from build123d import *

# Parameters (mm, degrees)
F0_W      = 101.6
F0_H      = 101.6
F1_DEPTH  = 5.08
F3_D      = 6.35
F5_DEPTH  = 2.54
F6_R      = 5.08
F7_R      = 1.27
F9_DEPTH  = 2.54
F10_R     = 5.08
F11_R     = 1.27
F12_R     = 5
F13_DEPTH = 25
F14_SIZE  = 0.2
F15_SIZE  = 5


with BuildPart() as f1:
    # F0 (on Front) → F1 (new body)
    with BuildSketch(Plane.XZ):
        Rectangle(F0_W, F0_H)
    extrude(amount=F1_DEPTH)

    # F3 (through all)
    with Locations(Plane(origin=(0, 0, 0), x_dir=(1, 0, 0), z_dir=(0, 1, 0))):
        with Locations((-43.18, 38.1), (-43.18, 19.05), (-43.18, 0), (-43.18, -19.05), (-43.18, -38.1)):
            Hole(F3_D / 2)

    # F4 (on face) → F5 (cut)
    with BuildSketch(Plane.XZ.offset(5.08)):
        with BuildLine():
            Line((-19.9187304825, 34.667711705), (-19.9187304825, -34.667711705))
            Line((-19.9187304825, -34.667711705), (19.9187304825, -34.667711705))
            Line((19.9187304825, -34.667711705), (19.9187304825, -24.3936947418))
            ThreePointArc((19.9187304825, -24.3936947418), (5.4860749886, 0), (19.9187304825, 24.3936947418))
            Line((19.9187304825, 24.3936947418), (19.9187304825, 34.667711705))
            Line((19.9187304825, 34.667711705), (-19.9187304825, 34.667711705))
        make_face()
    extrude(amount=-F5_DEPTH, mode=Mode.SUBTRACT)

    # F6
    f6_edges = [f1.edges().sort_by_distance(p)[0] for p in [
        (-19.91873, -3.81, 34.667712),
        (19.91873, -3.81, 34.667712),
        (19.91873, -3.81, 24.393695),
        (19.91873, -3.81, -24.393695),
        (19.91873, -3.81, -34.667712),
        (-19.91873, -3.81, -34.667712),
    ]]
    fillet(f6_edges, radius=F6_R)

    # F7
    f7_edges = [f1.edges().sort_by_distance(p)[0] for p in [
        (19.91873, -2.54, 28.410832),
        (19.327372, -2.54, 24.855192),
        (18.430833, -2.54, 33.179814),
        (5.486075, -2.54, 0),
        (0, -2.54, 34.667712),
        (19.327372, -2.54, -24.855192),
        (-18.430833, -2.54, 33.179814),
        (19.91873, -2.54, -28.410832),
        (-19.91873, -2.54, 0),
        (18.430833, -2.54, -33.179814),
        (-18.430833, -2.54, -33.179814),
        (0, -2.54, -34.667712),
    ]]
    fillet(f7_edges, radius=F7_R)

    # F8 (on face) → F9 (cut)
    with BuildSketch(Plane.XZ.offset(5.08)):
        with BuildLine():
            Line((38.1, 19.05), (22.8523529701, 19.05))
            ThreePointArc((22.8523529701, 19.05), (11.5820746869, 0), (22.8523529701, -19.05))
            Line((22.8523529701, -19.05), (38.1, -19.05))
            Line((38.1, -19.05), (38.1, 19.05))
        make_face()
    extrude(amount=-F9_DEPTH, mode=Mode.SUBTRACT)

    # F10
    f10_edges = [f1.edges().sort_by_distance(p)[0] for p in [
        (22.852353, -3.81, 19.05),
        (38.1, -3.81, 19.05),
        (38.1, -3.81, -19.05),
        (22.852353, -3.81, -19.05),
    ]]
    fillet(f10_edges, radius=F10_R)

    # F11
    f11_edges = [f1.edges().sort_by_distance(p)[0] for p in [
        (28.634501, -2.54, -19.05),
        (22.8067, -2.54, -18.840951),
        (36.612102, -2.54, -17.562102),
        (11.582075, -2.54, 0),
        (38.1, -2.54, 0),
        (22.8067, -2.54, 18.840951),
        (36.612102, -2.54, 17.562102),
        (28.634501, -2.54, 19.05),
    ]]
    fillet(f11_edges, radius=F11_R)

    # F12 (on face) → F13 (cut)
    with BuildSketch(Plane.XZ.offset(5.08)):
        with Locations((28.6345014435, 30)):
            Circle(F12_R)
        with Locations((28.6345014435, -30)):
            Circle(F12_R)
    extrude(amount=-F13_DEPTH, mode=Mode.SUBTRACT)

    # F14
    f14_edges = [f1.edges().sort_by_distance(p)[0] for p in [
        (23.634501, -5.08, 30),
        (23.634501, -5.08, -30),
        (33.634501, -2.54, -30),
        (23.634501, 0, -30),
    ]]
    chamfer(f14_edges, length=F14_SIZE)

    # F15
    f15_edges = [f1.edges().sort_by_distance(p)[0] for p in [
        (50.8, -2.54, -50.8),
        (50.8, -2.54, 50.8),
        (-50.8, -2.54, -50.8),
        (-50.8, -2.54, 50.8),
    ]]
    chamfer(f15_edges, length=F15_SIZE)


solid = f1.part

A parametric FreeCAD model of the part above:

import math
import FreeCAD as App
import Part
import Sketcher
from FreeCAD import Vector
Q = App.Units.Quantity


def edges_at(feature, points):
    """Names of the edges that pass closest to the given points."""
    edges = feature.Shape.Edges
    near = lambda p: min(range(len(edges)), key=lambda i: edges[i].distToShape(Part.Vertex(*p))[0])
    return sorted({f"Edge{near(p) + 1}" for p in points})

doc = App.newDocument("Part")
body = doc.addObject("PartDesign::Body", "Body")

# Sketch on XZ plane
sketch1 = body.newObject("Sketcher::SketchObject", "Sketch")
sketch1.AttachmentSupport = (doc.getObject("XZ_Plane"), [""])
sketch1.MapMode = "FlatFace"
sketch1.addGeometry(Part.LineSegment(Vector(-51, 51, 0), Vector(-51, -51, 0)), False)
sketch1.addGeometry(Part.LineSegment(Vector(-51, -51, 0), Vector(51, -51, 0)), False)
sketch1.addGeometry(Part.LineSegment(Vector(51, -51, 0), Vector(51, 51, 0)), False)
sketch1.addGeometry(Part.LineSegment(Vector(51, 51, 0), Vector(-51, 51, 0)), False)
sketch1.addConstraint(Sketcher.Constraint("Coincident", 0, 2, 1, 1))
sketch1.addConstraint(Sketcher.Constraint("Coincident", 1, 2, 2, 1))
sketch1.addConstraint(Sketcher.Constraint("Coincident", 2, 2, 3, 1))
sketch1.addConstraint(Sketcher.Constraint("Coincident", 3, 2, 0, 1))
sketch1.addConstraint(Sketcher.Constraint("Vertical", 0))
sketch1.addConstraint(Sketcher.Constraint("Horizontal", 1))
sketch1.addConstraint(Sketcher.Constraint("Vertical", 2))
sketch1.addConstraint(Sketcher.Constraint("Horizontal", 3))
sketch1.addConstraint(Sketcher.Constraint("Symmetric", 0, 2, 2, 2, -1, 1))
sketch1.addConstraint(Sketcher.Constraint("Equal", 3, 0))
sketch1.addConstraint(Sketcher.Constraint("DistanceX", 1, 1, 1, 2, Q("4 in")))
pad1 = body.newObject("PartDesign::Pad", "Pad")
pad1.Profile = sketch1
pad1.Length = Q("0.2 in")

# Sketch on XZ plane
sketch2 = body.newObject("Sketcher::SketchObject", "Sketch001")
sketch2.AttachmentSupport = (doc.getObject("XZ_Plane"), [""])
sketch2.MapMode = "FlatFace"
sketch2.addGeometry(Part.Circle(Vector(-43.2, -38.1, 0), Vector(0, 0, 1), 3.2), False)
sketch2.addGeometry(Part.Circle(Vector(-43.2, -19.1, 0), Vector(0, 0, 1), 3.2), False)
sketch2.addGeometry(Part.Circle(Vector(-43.2, 0, 0), Vector(0, 0, 1), 3.2), False)
sketch2.addGeometry(Part.Circle(Vector(-43.2, 19.1, 0), Vector(0, 0, 1), 3.2), False)
sketch2.addGeometry(Part.Circle(Vector(-43.2, 38.1, 0), Vector(0, 0, 1), 3.2), False)
sketch2.addConstraint(Sketcher.Constraint("Equal", 0, 1))
sketch2.addConstraint(Sketcher.Constraint("Equal", 1, 2))
sketch2.addConstraint(Sketcher.Constraint("Equal", 2, 3))
sketch2.addConstraint(Sketcher.Constraint("Equal", 3, 4))
sketch2.addConstraint(Sketcher.Constraint("Symmetric", 1, 3, 3, 3, -1))
sketch2.addConstraint(Sketcher.Constraint("Symmetric", 0, 3, 4, 3, -1))
sketch2.addConstraint(Sketcher.Constraint("PointOnObject", 2, 3, -1))
sketch2.addConstraint(Sketcher.Constraint("Vertical", 0, 3, 1, 3))
sketch2.addConstraint(Sketcher.Constraint("Vertical", 1, 3, 2, 3))
sketch2.addConstraint(Sketcher.Constraint("Diameter", 0, Q("0.25 in")))
sketch2.addConstraint(Sketcher.Constraint("DistanceY", 0, 3, 4, 3, Q("3 in")))
sketch2.addConstraint(Sketcher.Constraint("DistanceX", 0, 3, -1, 1, Q("1.7 in")))
sketch2.addConstraint(Sketcher.Constraint("DistanceY", 1, 3, 3, 3, Q("1.5 in")))
doc.recompute()
hole = body.newObject("PartDesign::Hole", "Hole")
hole.Profile = sketch2
hole.ThreadType = "None"
hole.Diameter = Q("0.25 in")
hole.DepthType = "ThroughAll"
hole.Reversed = True

# Sketch on XZ plane
sketch3 = body.newObject("Sketcher::SketchObject", "Sketch002")
sketch3.AttachmentSupport = (doc.getObject("XZ_Plane"), [""])
sketch3.MapMode = "FlatFace"
sketch3.AttachmentOffset = App.Placement(Vector(0, 0, 0.2 * 25.4), App.Rotation())
sketch3.addGeometry(Part.LineSegment(Vector(-20, 35, 0), Vector(-20, -35, 0)), False)
sketch3.addGeometry(Part.LineSegment(Vector(-20, -35, 0), Vector(20, -35, 0)), False)
sketch3.addGeometry(Part.LineSegment(Vector(20, -35, 0), Vector(20, -24, 0)), False)
sketch3.addGeometry(Part.ArcOfCircle(Part.Circle(Vector(33, 0, 0), Vector(0, 0, 1), 28), math.radians(119), math.radians(241)), False)
sketch3.addGeometry(Part.LineSegment(Vector(20, 24, 0), Vector(20, 35, 0)), False)
sketch3.addGeometry(Part.LineSegment(Vector(20, 35, 0), Vector(-20, 35, 0)), False)
sketch3.addConstraint(Sketcher.Constraint("Coincident", 0, 2, 1, 1))
sketch3.addConstraint(Sketcher.Constraint("Coincident", 1, 2, 2, 1))
sketch3.addConstraint(Sketcher.Constraint("Coincident", 2, 2, 3, 2))
sketch3.addConstraint(Sketcher.Constraint("Coincident", 3, 1, 4, 1))
sketch3.addConstraint(Sketcher.Constraint("Coincident", 4, 2, 5, 1))
sketch3.addConstraint(Sketcher.Constraint("Coincident", 5, 2, 0, 1))
sketch3.addConstraint(Sketcher.Constraint("Vertical", 0))
sketch3.addConstraint(Sketcher.Constraint("Horizontal", 1))
sketch3.addConstraint(Sketcher.Constraint("Vertical", 2))
sketch3.addConstraint(Sketcher.Constraint("Vertical", 4))
sketch3.addConstraint(Sketcher.Constraint("Horizontal", 5))
sketch3.addConstraint(Sketcher.Constraint("Symmetric", 0, 2, 4, 2, -1, 1))
sketch3.addConstraint(Sketcher.Constraint("Symmetric", 2, 2, 3, 1, -1))
sketch3.addConstraint(Sketcher.Constraint("Radius", 3, Q("27.831118 mm")))
sketch3.addConstraint(Sketcher.Constraint("DistanceX", 1, 1, 1, 2, Q("39.837461 mm")))
sketch3.addConstraint(Sketcher.Constraint("DistanceY", 0, 2, 0, 1, Q("69.335423 mm")))
sketch3.addConstraint(Sketcher.Constraint("DistanceY", 2, 1, 2, 2, Q("10.274017 mm")))
pocket1 = body.newObject("PartDesign::Pocket", "Pocket")
pocket1.Profile = sketch3
pocket1.Length = Q("0.1 in")
doc.recompute()

fillet = body.newObject("PartDesign::Fillet", "Fillet")
fillet.Base = (pocket1, edges_at(pocket1, [
    (-19.919, -3.81, 34.668),
    (19.919, -3.81, 34.668),
    (19.919, -3.81, 24.394),
    (19.919, -3.81, -24.394),
    (19.919, -3.81, -34.668),
    (-19.919, -3.81, -34.668),
]))
fillet.Radius = Q("0.2 in")
doc.recompute()

fillet2 = body.newObject("PartDesign::Fillet", "Fillet001")
fillet2.Base = (fillet, edges_at(fillet, [
    (19.919, -2.54, 28.411),
    (19.327, -2.54, 24.855),
    (18.431, -2.54, 33.18),
    (5.486, -2.54, 0),
    (0, -2.54, 34.668),
    (19.327, -2.54, -24.855),
    (-18.431, -2.54, 33.18),
    (19.919, -2.54, -28.411),
    (-19.919, -2.54, 0),
    (18.431, -2.54, -33.18),
    (-18.431, -2.54, -33.18),
    (0, -2.54, -34.668),
]))
fillet2.Radius = Q("0.05 in")

# Sketch on XZ plane
sketch4 = body.newObject("Sketcher::SketchObject", "Sketch003")
sketch4.AttachmentSupport = (doc.getObject("XZ_Plane"), [""])
sketch4.MapMode = "FlatFace"
sketch4.AttachmentOffset = App.Placement(Vector(0, 0, 0.2 * 25.4), App.Rotation())
sketch4.addGeometry(Part.LineSegment(Vector(38, 19, 0), Vector(23, 19, 0)), False)
sketch4.addGeometry(Part.ArcOfCircle(Part.Circle(Vector(33, 0, 0), Vector(0, 0, 1), 22), math.radians(119), math.radians(241)), False)
sketch4.addGeometry(Part.LineSegment(Vector(23, -19, 0), Vector(38, -19, 0)), False)
sketch4.addGeometry(Part.LineSegment(Vector(38, -19, 0), Vector(38, 19, 0)), False)
sketch4.addConstraint(Sketcher.Constraint("Coincident", 0, 2, 1, 1))
sketch4.addConstraint(Sketcher.Constraint("Coincident", 1, 2, 2, 1))
sketch4.addConstraint(Sketcher.Constraint("Coincident", 2, 2, 3, 1))
sketch4.addConstraint(Sketcher.Constraint("Coincident", 3, 2, 0, 1))
sketch4.addConstraint(Sketcher.Constraint("Horizontal", 0))
sketch4.addConstraint(Sketcher.Constraint("Horizontal", 2))
sketch4.addConstraint(Sketcher.Constraint("Vertical", 3))
sketch4.addConstraint(Sketcher.Constraint("Symmetric", 0, 2, 1, 2, -1))
sketch4.addConstraint(Sketcher.Constraint("DistanceY", 3, 1, 3, 2, Q("1.5 in")))
sketch4.addConstraint(Sketcher.Constraint("DistanceX", -1, 1, 2, 2, Q("1.5 in")))
sketch4.addConstraint(Sketcher.Constraint("Radius", 1, Q("21.735119 mm")))
sketch4.addConstraint(Sketcher.Constraint("DistanceX", 0, 2, 0, 1, Q("15.247647 mm")))
pocket2 = body.newObject("PartDesign::Pocket", "Pocket001")
pocket2.Profile = sketch4
pocket2.Length = Q("0.1 in")
doc.recompute()

fillet3 = body.newObject("PartDesign::Fillet", "Fillet002")
fillet3.Base = (pocket2, edges_at(pocket2, [
    (22.852, -3.81, 19.05),
    (38.1, -3.81, 19.05),
    (38.1, -3.81, -19.05),
    (22.852, -3.81, -19.05),
]))
fillet3.Radius = Q("0.2 in")
doc.recompute()

fillet4 = body.newObject("PartDesign::Fillet", "Fillet003")
fillet4.Base = (fillet3, edges_at(fillet3, [
    (28.635, -2.54, -19.05),
    (22.807, -2.54, -18.841),
    (36.612, -2.54, -17.562),
    (11.582, -2.54, 0),
    (38.1, -2.54, 0),
    (22.807, -2.54, 18.841),
    (36.612, -2.54, 17.562),
    (28.635, -2.54, 19.05),
]))
fillet4.Radius = Q("0.05 in")

# Sketch on XZ plane
sketch5 = body.newObject("Sketcher::SketchObject", "Sketch004")
sketch5.AttachmentSupport = (doc.getObject("XZ_Plane"), [""])
sketch5.MapMode = "FlatFace"
sketch5.AttachmentOffset = App.Placement(Vector(0, 0, 0.2 * 25.4), App.Rotation())
sketch5.addGeometry(Part.Circle(Vector(29, 30, 0), Vector(0, 0, 1), 5), False)
sketch5.addGeometry(Part.Circle(Vector(29, -30, 0), Vector(0, 0, 1), 5), False)
sketch5.addConstraint(Sketcher.Constraint("Equal", 0, 1))
sketch5.addConstraint(Sketcher.Constraint("Symmetric", 0, 3, 1, 3, -1))
sketch5.addConstraint(Sketcher.Constraint("Diameter", 0, Q("10 mm")))
sketch5.addConstraint(Sketcher.Constraint("DistanceX", -1, 1, 0, 3, Q("28.634501 mm")))
sketch5.addConstraint(Sketcher.Constraint("DistanceY", -1, 1, 0, 3, Q("30 mm")))
pocket3 = body.newObject("PartDesign::Pocket", "Pocket002")
pocket3.Profile = sketch5
pocket3.Length = 25
doc.recompute()

chamfer = body.newObject("PartDesign::Chamfer", "Chamfer")
chamfer.Base = (pocket3, edges_at(pocket3, [
    (23.635, -5.08, 30),
    (23.635, -5.08, -30),
    (33.635, -2.54, -30),
    (23.635, 0, -30),
]))
chamfer.Size = 0.2
doc.recompute()

chamfer2 = body.newObject("PartDesign::Chamfer", "Chamfer001")
chamfer2.Base = (chamfer, edges_at(chamfer, [
    (50.8, -2.54, -50.8),
    (50.8, -2.54, 50.8),
    (-50.8, -2.54, -50.8),
    (-50.8, -2.54, 50.8),
]))
chamfer2.Size = 5

doc.recompute()
